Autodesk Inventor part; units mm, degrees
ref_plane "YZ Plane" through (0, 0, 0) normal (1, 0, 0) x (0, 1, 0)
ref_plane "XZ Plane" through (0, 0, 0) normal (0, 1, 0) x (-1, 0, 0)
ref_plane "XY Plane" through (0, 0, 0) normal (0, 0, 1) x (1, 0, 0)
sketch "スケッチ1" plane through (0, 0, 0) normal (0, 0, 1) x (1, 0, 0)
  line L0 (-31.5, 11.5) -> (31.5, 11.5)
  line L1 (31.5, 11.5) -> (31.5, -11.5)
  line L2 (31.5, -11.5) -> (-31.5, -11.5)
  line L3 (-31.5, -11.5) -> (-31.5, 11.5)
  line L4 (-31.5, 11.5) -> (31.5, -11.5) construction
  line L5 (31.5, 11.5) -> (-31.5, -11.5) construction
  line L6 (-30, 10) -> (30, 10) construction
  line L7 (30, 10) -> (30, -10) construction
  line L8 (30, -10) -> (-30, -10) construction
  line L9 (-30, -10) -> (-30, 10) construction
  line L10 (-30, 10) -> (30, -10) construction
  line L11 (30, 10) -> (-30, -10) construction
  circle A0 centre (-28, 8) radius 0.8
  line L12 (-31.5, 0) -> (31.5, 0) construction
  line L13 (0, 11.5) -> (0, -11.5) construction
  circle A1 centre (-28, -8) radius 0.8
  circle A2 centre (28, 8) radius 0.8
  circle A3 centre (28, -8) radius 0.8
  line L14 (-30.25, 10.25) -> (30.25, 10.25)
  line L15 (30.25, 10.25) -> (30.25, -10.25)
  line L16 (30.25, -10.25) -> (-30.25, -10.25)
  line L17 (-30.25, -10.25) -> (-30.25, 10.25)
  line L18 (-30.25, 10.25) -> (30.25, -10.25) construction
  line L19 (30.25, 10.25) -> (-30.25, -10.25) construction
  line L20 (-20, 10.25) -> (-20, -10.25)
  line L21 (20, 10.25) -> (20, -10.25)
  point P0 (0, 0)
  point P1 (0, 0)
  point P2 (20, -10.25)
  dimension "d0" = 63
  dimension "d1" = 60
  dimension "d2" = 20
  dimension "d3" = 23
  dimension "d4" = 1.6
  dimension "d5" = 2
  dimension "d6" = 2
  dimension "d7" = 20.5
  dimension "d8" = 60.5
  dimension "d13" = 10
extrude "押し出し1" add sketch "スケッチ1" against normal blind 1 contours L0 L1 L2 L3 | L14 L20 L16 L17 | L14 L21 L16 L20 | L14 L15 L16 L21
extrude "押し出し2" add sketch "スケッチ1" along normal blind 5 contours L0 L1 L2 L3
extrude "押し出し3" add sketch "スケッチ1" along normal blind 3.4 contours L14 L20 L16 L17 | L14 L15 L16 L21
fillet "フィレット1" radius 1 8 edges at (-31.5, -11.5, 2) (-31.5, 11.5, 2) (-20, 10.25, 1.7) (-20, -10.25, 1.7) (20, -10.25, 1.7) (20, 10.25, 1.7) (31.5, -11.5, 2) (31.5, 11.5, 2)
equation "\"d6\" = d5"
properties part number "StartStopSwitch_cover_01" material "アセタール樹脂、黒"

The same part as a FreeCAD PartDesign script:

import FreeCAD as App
import Part
import Sketcher
Q = App.Units.Quantity


def edges_at(feature, points):
    """Names of the edges that pass closest to the given points."""
    edges = feature.Shape.Edges
    near = lambda p: min(range(len(edges)), key=lambda i: edges[i].distToShape(Part.Vertex(*p))[0])
    return sorted({f"Edge{near(p) + 1}" for p in points})

doc = App.newDocument("Part")
body = doc.addObject("PartDesign::Body", "Body")

sketch1 = body.newObject("Sketcher::SketchObject", "Sketch")
sketch1.AttachmentSupport = (doc.getObject("XY_Plane"), [""])
sketch1.MapMode = "FlatFace"
sketch1.addGeometry(Part.LineSegment(App.Vector(31.5, 11.5, 0), App.Vector(-31.5, 11.5, 0)), False)
sketch1.addGeometry(Part.LineSegment(App.Vector(-31.5, 11.5, 0), App.Vector(-31.5, -11.5, 0)), False)
sketch1.addGeometry(Part.LineSegment(App.Vector(-31.5, -11.5, 0), App.Vector(31.5, -11.5, 0)), False)
sketch1.addGeometry(Part.LineSegment(App.Vector(31.5, -11.5, 0), App.Vector(31.5, 11.5, 0)), False)
sketch1.addGeometry(Part.Circle(App.Vector(-28, 8, 0), App.Vector(0, 0, 1), 0.8), False)
sketch1.addGeometry(Part.Circle(App.Vector(-28, -8, 0), App.Vector(0, 0, 1), 0.8), False)
sketch1.addGeometry(Part.Circle(App.Vector(28, 8, 0), App.Vector(0, 0, 1), 0.8), False)
sketch1.addGeometry(Part.Circle(App.Vector(28, -8, 0), App.Vector(0, 0, 1), 0.8), False)
sketch1.addConstraint(Sketcher.Constraint("Coincident", 0, 2, 1, 1))
sketch1.addConstraint(Sketcher.Constraint("Coincident", 1, 2, 2, 1))
sketch1.addConstraint(Sketcher.Constraint("Coincident", 2, 2, 3, 1))
sketch1.addConstraint(Sketcher.Constraint("Coincident", 3, 2, 0, 1))
sketch1.addConstraint(Sketcher.Constraint("Horizontal", 0))
sketch1.addConstraint(Sketcher.Constraint("Vertical", 1))
sketch1.addConstraint(Sketcher.Constraint("Horizontal", 2))
sketch1.addConstraint(Sketcher.Constraint("Vertical", 3))
sketch1.addConstraint(Sketcher.Constraint("Equal", 4, 5))
sketch1.addConstraint(Sketcher.Constraint("Equal", 5, 6))
sketch1.addConstraint(Sketcher.Constraint("Equal", 6, 7))
sketch1.addConstraint(Sketcher.Constraint("Symmetric", 5, 3, 6, 3, -1, 1))
sketch1.addConstraint(Sketcher.Constraint("Symmetric", 4, 3, 7, 3, -1, 1))
sketch1.addConstraint(Sketcher.Constraint("Symmetric", 0, 2, 2, 2, -1, 1))
sketch1.addConstraint(Sketcher.Constraint("Symmetric", 4, 3, 6, 3, -2))
sketch1.addConstraint(Sketcher.Constraint("Diameter", 4, Q("1.6 mm")))
sketch1.addConstraint(Sketcher.Constraint("DistanceX", 0, 2, 0, 1, Q("63 mm")))
sketch1.addConstraint(Sketcher.Constraint("DistanceY", 1, 2, 1, 1, Q("23 mm")))
sketch1.addConstraint(Sketcher.Constraint("DistanceX", 4, 3, -1, 1, Q("28 mm")))
sketch1.addConstraint(Sketcher.Constraint("DistanceY", -1, 1, 4, 3, Q("8 mm")))
pad1 = body.newObject("PartDesign::Pad", "Pad")
pad1.Profile = sketch1
pad1.Length = 1
pad1.Reversed = True

sketch2 = body.newObject("Sketcher::SketchObject", "Sketch001")
sketch2.AttachmentSupport = (doc.getObject("XY_Plane"), [""])
sketch2.MapMode = "FlatFace"
sketch2.addGeometry(Part.LineSegment(App.Vector(32, 12, 0), App.Vector(-32, 12, 0)), False)
sketch2.addGeometry(Part.LineSegment(App.Vector(-32, 12, 0), App.Vector(-32, -12, 0)), False)
sketch2.addGeometry(Part.LineSegment(App.Vector(-32, -12, 0), App.Vector(32, -12, 0)), False)
sketch2.addGeometry(Part.LineSegment(App.Vector(32, -12, 0), App.Vector(32, 12, 0)), False)
sketch2.addGeometry(Part.LineSegment(App.Vector(-30, -10, 0), App.Vector(-30, 10, 0)), False)
sketch2.addGeometry(Part.LineSegment(App.Vector(-30, 10, 0), App.Vector(30, 10, 0)), False)
sketch2.addGeometry(Part.LineSegment(App.Vector(30, 10, 0), App.Vector(30, -10, 0)), False)
sketch2.addGeometry(Part.LineSegment(App.Vector(30, -10, 0), App.Vector(-30, -10, 0)), False)
sketch2.addConstraint(Sketcher.Constraint("Coincident", 0, 2, 1, 1))
sketch2.addConstraint(Sketcher.Constraint("Coincident", 1, 2, 2, 1))
sketch2.addConstraint(Sketcher.Constraint("Coincident", 2, 2, 3, 1))
sketch2.addConstraint(Sketcher.Constraint("Coincident", 3, 2, 0, 1))
sketch2.addConstraint(Sketcher.Constraint("Coincident", 4, 2, 5, 1))
sketch2.addConstraint(Sketcher.Constraint("Coincident", 5, 2, 6, 1))
sketch2.addConstraint(Sketcher.Constraint("Coincident", 6, 2, 7, 1))
sketch2.addConstraint(Sketcher.Constraint("Coincident", 7, 2, 4, 1))
sketch2.addConstraint(Sketcher.Constraint("Horizontal", 0))
sketch2.addConstraint(Sketcher.Constraint("Vertical", 1))
sketch2.addConstraint(Sketcher.Constraint("Horizontal", 2))
sketch2.addConstraint(Sketcher.Constraint("Vertical", 3))
sketch2.addConstraint(Sketcher.Constraint("Vertical", 4))
sketch2.addConstraint(Sketcher.Constraint("Horizontal", 5))
sketch2.addConstraint(Sketcher.Constraint("Vertical", 6))
sketch2.addConstraint(Sketcher.Constraint("Horizontal", 7))
sketch2.addConstraint(Sketcher.Constraint("Symmetric", 0, 2, 2, 2, -1, 1))
sketch2.addConstraint(Sketcher.Constraint("Symmetric", 4, 2, 6, 2, -1, 1))
sketch2.addConstraint(Sketcher.Constraint("DistanceX", 0, 2, 0, 1, Q("63 mm")))
sketch2.addConstraint(Sketcher.Constraint("DistanceY", 1, 2, 1, 1, Q("23 mm")))
sketch2.addConstraint(Sketcher.Constraint("DistanceX", 5, 1, 5, 2, Q("60.5 mm")))
sketch2.addConstraint(Sketcher.Constraint("DistanceY", 4, 1, 4, 2, Q("20.5 mm")))
pad2 = body.newObject("PartDesign::Pad", "Pad001")
pad2.Profile = sketch2
pad2.Length = 5

sketch3 = body.newObject("Sketcher::SketchObject", "Sketch002")
sketch3.AttachmentSupport = (doc.getObject("XY_Plane"), [""])
sketch3.MapMode = "FlatFace"
sketch3.addGeometry(Part.LineSegment(App.Vector(-20, 10.2, 0), App.Vector(-30.2, 10.2, 0)), False)
sketch3.addGeometry(Part.LineSegment(App.Vector(-30.2, 10.2, 0), App.Vector(-30.2, -10.2, 0)), False)
sketch3.addGeometry(Part.LineSegment(App.Vector(-30.2, -10.2, 0), App.Vector(-20, -10.2, 0)), False)
sketch3.addGeometry(Part.LineSegment(App.Vector(-20, -10.2, 0), App.Vector(-20, 10.2, 0)), False)
sketch3.addGeometry(Part.Circle(App.Vector(-28, -8, 0), App.Vector(0, 0, 1), 0.8), False)
sketch3.addGeometry(Part.Circle(App.Vector(-28, 8, 0), App.Vector(0, 0, 1), 0.8), False)
sketch3.addGeometry(Part.LineSegment(App.Vector(30.2, 10.2, 0), App.Vector(20, 10.2, 0)), False)
sketch3.addGeometry(Part.LineSegment(App.Vector(20, 10.2, 0), App.Vector(20, -10.2, 0)), False)
sketch3.addGeometry(Part.LineSegment(App.Vector(20, -10.2, 0), App.Vector(30.2, -10.2, 0)), False)
sketch3.addGeometry(Part.LineSegment(App.Vector(30.2, -10.2, 0), App.Vector(30.2, 10.2, 0)), False)
sketch3.addGeometry(Part.Circle(App.Vector(28, -8, 0), App.Vector(0, 0, 1), 0.8), False)
sketch3.addGeometry(Part.Circle(App.Vector(28, 8, 0), App.Vector(0, 0, 1), 0.8), False)
sketch3.addConstraint(Sketcher.Constraint("Coincident", 0, 2, 1, 1))
sketch3.addConstraint(Sketcher.Constraint("Coincident", 1, 2, 2, 1))
sketch3.addConstraint(Sketcher.Constraint("Coincident", 2, 2, 3, 1))
sketch3.addConstraint(Sketcher.Constraint("Coincident", 3, 2, 0, 1))
sketch3.addConstraint(Sketcher.Constraint("Coincident", 6, 2, 7, 1))
sketch3.addConstraint(Sketcher.Constraint("Coincident", 7, 2, 8, 1))
sketch3.addConstraint(Sketcher.Constraint("Coincident", 8, 2, 9, 1))
sketch3.addConstraint(Sketcher.Constraint("Coincident", 9, 2, 6, 1))
sketch3.addConstraint(Sketcher.Constraint("Horizontal", 0))
sketch3.addConstraint(Sketcher.Constraint("Vertical", 1))
sketch3.addConstraint(Sketcher.Constraint("Horizontal", 2))
sketch3.addConstraint(Sketcher.Constraint("Vertical", 3))
sketch3.addConstraint(Sketcher.Constraint("Horizontal", 6))
sketch3.addConstraint(Sketcher.Constraint("Vertical", 7))
sketch3.addConstraint(Sketcher.Constraint("Horizontal", 8))
sketch3.addConstraint(Sketcher.Constraint("Vertical", 9))
sketch3.addConstraint(Sketcher.Constraint("Equal", 4, 5))
sketch3.addConstraint(Sketcher.Constraint("Equal", 5, 10))
sketch3.addConstraint(Sketcher.Constraint("Equal", 10, 11))
sketch3.addConstraint(Sketcher.Constraint("Symmetric", 5, 3, 10, 3, -1, 1))
sketch3.addConstraint(Sketcher.Constraint("Symmetric", 4, 3, 11, 3, -1, 1))
sketch3.addConstraint(Sketcher.Constraint("Symmetric", 2, 2, 6, 2, -1, 1))
sketch3.addConstraint(Sketcher.Constraint("Symmetric", 0, 2, 8, 2, -1, 1))
sketch3.addConstraint(Sketcher.Constraint("Symmetric", 4, 3, 10, 3, -2))
sketch3.addConstraint(Sketcher.Constraint("Horizontal", 3, 2, 6, 2))
sketch3.addConstraint(Sketcher.Constraint("Diameter", 4, Q("1.6 mm")))
sketch3.addConstraint(Sketcher.Constraint("DistanceY", 1, 2, 1, 1, Q("20.5 mm")))
sketch3.addConstraint(Sketcher.Constraint("DistanceX", 2, 2, -1, 1, Q("20 mm")))
sketch3.addConstraint(Sketcher.Constraint("DistanceX", 4, 3, -1, 1, Q("28 mm")))
sketch3.addConstraint(Sketcher.Constraint("DistanceY", 4, 3, -1, 1, Q("8 mm")))
sketch3.addConstraint(Sketcher.Constraint("DistanceX", 0, 2, 0, 1, Q("10.25 mm")))
pad3 = body.newObject("PartDesign::Pad", "Pad002")
pad3.Profile = sketch3
pad3.Length = 3.4
doc.recompute()

fillet = body.newObject("PartDesign::Fillet", "Fillet")
fillet.Base = (pad3, edges_at(pad3, [
    (-31.5, -11.5, 2),
    (-31.5, 11.5, 2),
    (-20, 10.25, 1.7),
    (-20, -10.25, 1.7),
    (20, -10.25, 1.7),
    (20, 10.25, 1.7),
    (31.5, -11.5, 2),
    (31.5, 11.5, 2),
]))
fillet.Radius = 1

doc.recompute()
